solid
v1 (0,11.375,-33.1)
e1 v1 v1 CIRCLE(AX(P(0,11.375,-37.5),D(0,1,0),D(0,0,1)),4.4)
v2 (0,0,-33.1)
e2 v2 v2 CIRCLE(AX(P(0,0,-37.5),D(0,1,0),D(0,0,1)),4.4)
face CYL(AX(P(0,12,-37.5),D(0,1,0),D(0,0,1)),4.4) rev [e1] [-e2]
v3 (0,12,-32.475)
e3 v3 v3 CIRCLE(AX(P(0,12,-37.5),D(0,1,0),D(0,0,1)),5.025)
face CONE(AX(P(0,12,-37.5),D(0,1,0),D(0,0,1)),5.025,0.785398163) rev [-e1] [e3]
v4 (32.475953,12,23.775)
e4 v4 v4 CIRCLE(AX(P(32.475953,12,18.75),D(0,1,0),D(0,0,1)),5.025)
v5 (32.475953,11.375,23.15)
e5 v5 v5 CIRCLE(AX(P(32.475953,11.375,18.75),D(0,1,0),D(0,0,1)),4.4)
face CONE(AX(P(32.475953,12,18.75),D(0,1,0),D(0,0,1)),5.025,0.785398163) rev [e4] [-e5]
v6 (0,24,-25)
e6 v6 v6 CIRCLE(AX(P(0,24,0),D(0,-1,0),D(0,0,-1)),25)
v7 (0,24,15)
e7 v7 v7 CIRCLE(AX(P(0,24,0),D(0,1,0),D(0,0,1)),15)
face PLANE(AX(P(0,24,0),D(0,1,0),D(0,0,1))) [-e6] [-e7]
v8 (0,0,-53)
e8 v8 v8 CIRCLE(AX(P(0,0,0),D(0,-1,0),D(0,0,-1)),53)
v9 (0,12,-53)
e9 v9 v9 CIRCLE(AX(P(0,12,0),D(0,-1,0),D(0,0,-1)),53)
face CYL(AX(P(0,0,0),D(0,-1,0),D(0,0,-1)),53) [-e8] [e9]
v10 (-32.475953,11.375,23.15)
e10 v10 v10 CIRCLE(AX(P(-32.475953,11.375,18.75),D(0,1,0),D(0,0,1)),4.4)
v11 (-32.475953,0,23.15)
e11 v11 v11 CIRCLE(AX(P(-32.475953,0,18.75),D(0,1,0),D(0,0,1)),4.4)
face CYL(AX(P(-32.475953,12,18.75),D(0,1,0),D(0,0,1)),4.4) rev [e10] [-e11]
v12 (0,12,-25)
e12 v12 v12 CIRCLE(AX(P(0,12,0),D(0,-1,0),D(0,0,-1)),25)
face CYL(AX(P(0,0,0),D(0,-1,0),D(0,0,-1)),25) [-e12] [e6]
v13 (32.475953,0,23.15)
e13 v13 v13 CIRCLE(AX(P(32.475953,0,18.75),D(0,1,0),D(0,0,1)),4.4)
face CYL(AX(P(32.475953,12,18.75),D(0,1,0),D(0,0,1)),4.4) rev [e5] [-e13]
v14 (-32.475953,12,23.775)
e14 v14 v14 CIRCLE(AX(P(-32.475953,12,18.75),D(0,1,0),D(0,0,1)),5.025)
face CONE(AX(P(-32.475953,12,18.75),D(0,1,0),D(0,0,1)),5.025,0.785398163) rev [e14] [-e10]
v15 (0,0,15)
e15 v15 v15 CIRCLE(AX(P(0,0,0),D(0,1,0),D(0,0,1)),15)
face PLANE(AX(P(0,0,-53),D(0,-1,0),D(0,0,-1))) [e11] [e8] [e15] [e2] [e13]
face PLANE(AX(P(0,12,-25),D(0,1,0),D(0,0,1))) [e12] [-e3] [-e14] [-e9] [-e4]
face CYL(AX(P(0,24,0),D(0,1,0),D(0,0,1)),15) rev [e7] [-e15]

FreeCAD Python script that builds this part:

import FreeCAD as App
import Part
import Sketcher

V = App.Vector
Q = App.Units.Quantity

doc = App.newDocument("Part")
body = doc.addObject("PartDesign::Body", "Body")

# Sketch on YZ plane
sketch1 = body.newObject("Sketcher::SketchObject", "Sketch")
sketch1.AttachmentSupport = (doc.getObject("YZ_Plane"), [""])
sketch1.MapMode = "FlatFace"
sketch1.addGeometry(Part.LineSegment(V(24, 0, 0), V(0, 0, 0)), False)
sketch1.addGeometry(Part.LineSegment(V(0, 0, 0), V(0, -53, 0)), False)
sketch1.addGeometry(Part.LineSegment(V(0, -53, 0), V(12, -53, 0)), False)
sketch1.addGeometry(Part.LineSegment(V(12, -53, 0), V(12, -25, 0)), False)
sketch1.addGeometry(Part.LineSegment(V(12, -25, 0), V(24, -25, 0)), False)
sketch1.addGeometry(Part.LineSegment(V(24, -25, 0), V(24, 0, 0)), False)
sketch1.addConstraint(Sketcher.Constraint("Coincident", 0, 2, 1, 1))
sketch1.addConstraint(Sketcher.Constraint("Coincident", 1, 2, 2, 1))
sketch1.addConstraint(Sketcher.Constraint("Coincident", 2, 2, 3, 1))
sketch1.addConstraint(Sketcher.Constraint("Coincident", 3, 2, 4, 1))
sketch1.addConstraint(Sketcher.Constraint("Coincident", 4, 2, 5, 1))
sketch1.addConstraint(Sketcher.Constraint("Coincident", 5, 2, 0, 1))
sketch1.addConstraint(Sketcher.Constraint("Horizontal", 0))
sketch1.addConstraint(Sketcher.Constraint("Vertical", 1))
sketch1.addConstraint(Sketcher.Constraint("Horizontal", 2))
sketch1.addConstraint(Sketcher.Constraint("Vertical", 3))
sketch1.addConstraint(Sketcher.Constraint("Horizontal", 4))
sketch1.addConstraint(Sketcher.Constraint("Vertical", 5))
sketch1.addConstraint(Sketcher.Constraint("Coincident", 0, 2, -1, 1))
sketch1.addConstraint(Sketcher.Constraint("Equal", 2, 4))
sketch1.addConstraint(Sketcher.Constraint("DistanceX", 0, 2, 0, 1, Q("24 mm")))
sketch1.addConstraint(Sketcher.Constraint("DistanceY", 1, 2, 1, 1, Q("53 mm")))
sketch1.addConstraint(Sketcher.Constraint("DistanceY", 3, 1, 3, 2, Q("28 mm")))
revolution = body.newObject("PartDesign::Revolution", "Revolution")
revolution.Profile = sketch1
revolution.ReferenceAxis = (sketch1, ["H_Axis"])
revolution.Angle = 360

# Sketch on XZ plane
sketch2 = body.newObject("Sketcher::SketchObject", "Sketch001")
sketch2.AttachmentSupport = (doc.getObject("XZ_Plane"), [""])
sketch2.MapMode = "FlatFace"
sketch2.AttachmentOffset = App.Placement(V(0, 0, -24), App.Rotation())
sketch2.addGeometry(Part.Circle(V(0, 0, 0), V(0, 0, 1), 15), False)
sketch2.addConstraint(Sketcher.Constraint("Coincident", 0, 3, -1, 1))
sketch2.addConstraint(Sketcher.Constraint("Diameter", 0, Q("30 mm")))
doc.recompute()
hole = body.newObject("PartDesign::Hole", "Hole")
hole.Profile = sketch2
hole.ThreadType = "None"
hole.Diameter = 30
hole.DepthType = "ThroughAll"
hole.Reversed = True

# Sketch on XZ plane
sketch3 = body.newObject("Sketcher::SketchObject", "Sketch002")
sketch3.AttachmentSupport = (doc.getObject("XZ_Plane"), [""])
sketch3.MapMode = "FlatFace"
sketch3.AttachmentOffset = App.Placement(V(0, 0, -12), App.Rotation())
sketch3.addGeometry(Part.Circle(V(0, -37.5, 0), V(0, 0, 1), 4.4), False)
sketch3.addConstraint(Sketcher.Constraint("PointOnObject", 0, 3, -2))
sketch3.addConstraint(Sketcher.Constraint("Diameter", 0, Q("8.8 mm")))
sketch3.addConstraint(Sketcher.Constraint("DistanceY", 0, 3, -1, 1, Q("37.5 mm")))
doc.recompute()
hole2 = body.newObject("PartDesign::Hole", "Hole001")
hole2.Profile = sketch3
hole2.ThreadType = "None"
hole2.Diameter = 8.8
hole2.DepthType = "ThroughAll"
hole2.HoleCutType = "Countersink"
hole2.HoleCutDiameter = 10.05
hole2.HoleCutCountersinkAngle = 90
hole2.Reversed = True
doc.recompute()

polarpattern = body.newObject("PartDesign::PolarPattern", "PolarPattern")
polarpattern.Originals = [hole2]
polarpattern.Axis = (doc.getObject("Y_Axis"), [""])
polarpattern.Angle = 360
polarpattern.Occurrences = 3
body.Tip = polarpattern

doc.recompute()
